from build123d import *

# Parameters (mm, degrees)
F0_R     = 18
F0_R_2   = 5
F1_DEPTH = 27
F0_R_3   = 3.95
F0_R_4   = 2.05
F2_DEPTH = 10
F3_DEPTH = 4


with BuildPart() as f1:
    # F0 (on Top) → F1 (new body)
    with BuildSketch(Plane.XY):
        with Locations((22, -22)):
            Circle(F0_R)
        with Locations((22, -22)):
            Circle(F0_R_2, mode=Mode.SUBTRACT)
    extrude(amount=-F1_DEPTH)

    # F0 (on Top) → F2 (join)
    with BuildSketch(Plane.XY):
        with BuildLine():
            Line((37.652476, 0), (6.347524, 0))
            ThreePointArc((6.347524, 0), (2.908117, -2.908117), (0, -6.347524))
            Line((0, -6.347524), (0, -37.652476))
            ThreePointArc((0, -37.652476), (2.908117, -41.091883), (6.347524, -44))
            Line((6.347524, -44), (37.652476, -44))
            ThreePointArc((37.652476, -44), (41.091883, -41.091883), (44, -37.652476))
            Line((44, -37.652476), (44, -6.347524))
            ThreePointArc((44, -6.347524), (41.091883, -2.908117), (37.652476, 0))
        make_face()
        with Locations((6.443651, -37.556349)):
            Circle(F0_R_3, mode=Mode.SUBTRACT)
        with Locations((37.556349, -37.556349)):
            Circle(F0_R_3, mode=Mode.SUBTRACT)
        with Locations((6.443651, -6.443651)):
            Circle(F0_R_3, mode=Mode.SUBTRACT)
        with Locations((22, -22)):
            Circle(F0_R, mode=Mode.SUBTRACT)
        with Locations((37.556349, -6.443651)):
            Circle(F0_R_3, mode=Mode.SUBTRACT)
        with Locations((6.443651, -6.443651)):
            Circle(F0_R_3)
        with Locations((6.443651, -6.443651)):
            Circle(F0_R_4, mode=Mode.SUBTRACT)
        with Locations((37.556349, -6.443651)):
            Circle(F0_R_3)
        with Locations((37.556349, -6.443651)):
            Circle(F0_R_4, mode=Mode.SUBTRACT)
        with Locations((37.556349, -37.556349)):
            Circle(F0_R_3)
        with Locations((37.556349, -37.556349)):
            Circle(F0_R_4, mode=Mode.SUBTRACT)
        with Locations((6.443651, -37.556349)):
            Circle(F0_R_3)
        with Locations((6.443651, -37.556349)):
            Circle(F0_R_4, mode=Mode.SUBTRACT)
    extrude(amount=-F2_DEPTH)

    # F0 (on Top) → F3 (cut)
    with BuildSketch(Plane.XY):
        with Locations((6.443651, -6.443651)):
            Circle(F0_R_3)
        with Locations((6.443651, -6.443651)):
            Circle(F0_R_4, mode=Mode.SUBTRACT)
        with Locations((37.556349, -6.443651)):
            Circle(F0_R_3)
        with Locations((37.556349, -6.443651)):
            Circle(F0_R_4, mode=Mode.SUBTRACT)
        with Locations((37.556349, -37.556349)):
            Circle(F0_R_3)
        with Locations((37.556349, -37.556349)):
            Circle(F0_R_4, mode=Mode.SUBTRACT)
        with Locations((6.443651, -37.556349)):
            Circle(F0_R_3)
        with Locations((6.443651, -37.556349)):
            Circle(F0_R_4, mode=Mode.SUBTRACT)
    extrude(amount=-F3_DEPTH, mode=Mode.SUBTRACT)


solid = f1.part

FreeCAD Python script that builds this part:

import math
import FreeCAD as App
import Part
import Sketcher
from FreeCAD import Vector
Q = App.Units.Quantity

doc = App.newDocument("Part")
body = doc.addObject("PartDesign::Body", "Body")

# Sketch on XY plane
sketch1 = body.newObject("Sketcher::SketchObject", "Sketch")
sketch1.AttachmentSupport = (doc.getObject("XY_Plane"), [""])
sketch1.MapMode = "FlatFace"
sketch1.addGeometry([
    Part.Circle(Vector(22, -22, 0), Vector(0, 0, 1), 18),
    Part.Circle(Vector(22, -22, 0), Vector(0, 0, 1), 5),
], False)
sketch1.addConstraint([
    Sketcher.Constraint("Coincident", 1, 3, 0, 3),
    Sketcher.Constraint("Diameter", 0, Q("36 mm")),
    Sketcher.Constraint("Diameter", 1, Q("10 mm")),
    Sketcher.Constraint("DistanceX", -1, 1, 0, 3, Q("22 mm")),
    Sketcher.Constraint("DistanceY", 0, 3, -1, 1, Q("22 mm")),
])
pad1 = body.newObject("PartDesign::Pad", "Pad")
pad1.Profile = sketch1
pad1.Length = 27
pad1.Reversed = True

# Sketch on XY plane
sketch2 = body.newObject("Sketcher::SketchObject", "Sketch001")
sketch2.AttachmentSupport = (doc.getObject("XY_Plane"), [""])
sketch2.MapMode = "FlatFace"
sketch2.addGeometry([
    Part.LineSegment(Vector(37.7, 0, 0), Vector(6.3, 0, 0)),  # 0
    Part.ArcOfCircle(Part.Circle(Vector(22, -22, 0), Vector(0, 0, 1), 27), math.radians(125.43), math.radians(144.57)),  # 1
    Part.LineSegment(Vector(0, -6.3, 0), Vector(0, -37.7, 0)),  # 2
    Part.ArcOfCircle(Part.Circle(Vector(22, -22, 0), Vector(0, 0, 1), 27), math.radians(-144.57), math.radians(-125.43)),  # 3
    Part.LineSegment(Vector(6.3, -44, 0), Vector(37.7, -44, 0)),  # 4
    Part.ArcOfCircle(Part.Circle(Vector(22, -22, 0), Vector(0, 0, 1), 27), math.radians(-54.57), math.radians(-35.43)),  # 5
    Part.LineSegment(Vector(44, -37.7, 0), Vector(44, -6.3, 0)),  # 6
    Part.ArcOfCircle(Part.Circle(Vector(22, -22, 0), Vector(0, 0, 1), 27), math.radians(35.43), math.radians(54.57)),  # 7
    Part.Circle(Vector(6.4, -37.6, 0), Vector(0, 0, 1), 2),  # 8
    Part.Circle(Vector(37.6, -37.6, 0), Vector(0, 0, 1), 2),  # 9
    Part.Circle(Vector(6.4, -6.4, 0), Vector(0, 0, 1), 2),  # 10
    Part.Circle(Vector(22, -22, 0), Vector(0, 0, 1), 18),  # 11
    Part.Circle(Vector(37.6, -6.4, 0), Vector(0, 0, 1), 2),  # 12
], False)
sketch2.addConstraint([
    Sketcher.Constraint("Coincident", 0, 2, 1, 1),
    Sketcher.Constraint("Coincident", 1, 2, 2, 1),
    Sketcher.Constraint("Coincident", 2, 2, 3, 1),
    Sketcher.Constraint("Coincident", 3, 2, 4, 1),
    Sketcher.Constraint("Coincident", 4, 2, 5, 1),
    Sketcher.Constraint("Coincident", 5, 2, 6, 1),
    Sketcher.Constraint("Coincident", 6, 2, 7, 1),
    Sketcher.Constraint("Coincident", 7, 2, 0, 1),
    Sketcher.Constraint("Horizontal", 0),
    Sketcher.Constraint("Vertical", 2),
    Sketcher.Constraint("Horizontal", 4),
    Sketcher.Constraint("Vertical", 6),
    Sketcher.Constraint("Equal", 1, 3),
    Sketcher.Constraint("Equal", 3, 5),
    Sketcher.Constraint("Equal", 5, 7),
    Sketcher.Constraint("Equal", 8, 9),
    Sketcher.Constraint("Equal", 9, 10),
    Sketcher.Constraint("Equal", 10, 12),
    Sketcher.Constraint("PointOnObject", 0, 2, -1),
    Sketcher.Constraint("PointOnObject", 1, 2, -2),
    Sketcher.Constraint("Horizontal", 3, 3, 5, 3),
    Sketcher.Constraint("Horizontal", 1, 3, 7, 3),
    Sketcher.Constraint("Horizontal", 8, 3, 9, 3),
    Sketcher.Constraint("Horizontal", 10, 3, 12, 3),
    Sketcher.Constraint("Horizontal", 2, 2, 5, 2),
    Sketcher.Constraint("Horizontal", 1, 2, 6, 2),
    Sketcher.Constraint("Vertical", 1, 3, 3, 3),
    Sketcher.Constraint("Vertical", 8, 3, 10, 3),
    Sketcher.Constraint("Vertical", 9, 3, 12, 3),
    Sketcher.Constraint("Vertical", 0, 2, 3, 2),
    Sketcher.Constraint("Equal", 4, 2),
    Sketcher.Constraint("Diameter", 11, Q("36 mm")),
    Sketcher.Constraint("Diameter", 8, Q("4.1 mm")),
    Sketcher.Constraint("DistanceX", -1, 1, 11, 3, Q("22 mm")),
    Sketcher.Constraint("DistanceY", 11, 3, -1, 1, Q("22 mm")),
    Sketcher.Constraint("DistanceY", 3, 2, -1, 1, Q("44 mm")),
    Sketcher.Constraint("DistanceX", -1, 1, 5, 2, Q("44 mm")),
    Sketcher.Constraint("Radius", 1, Q("27.000016 mm")),
    Sketcher.Constraint("DistanceX", 0, 2, 0, 1, Q("31.304952 mm")),
    Sketcher.Constraint("DistanceX", -1, 1, 8, 3, Q("6.443651 mm")),
    Sketcher.Constraint("DistanceY", 8, 3, -1, 1, Q("37.556349 mm")),
    Sketcher.Constraint("DistanceX", -1, 1, 9, 3, Q("37.556349 mm")),
    Sketcher.Constraint("DistanceY", 10, 3, -1, 1, Q("6.443651 mm")),
])
pad2 = body.newObject("PartDesign::Pad", "Pad001")
pad2.Profile = sketch2
pad2.Length = 10
pad2.Reversed = True

# Sketch on XY plane
sketch3 = body.newObject("Sketcher::SketchObject", "Sketch002")
sketch3.AttachmentSupport = (doc.getObject("XY_Plane"), [""])
sketch3.MapMode = "FlatFace"
sketch3.addGeometry([
    Part.Circle(Vector(6.4, -6.4, 0), Vector(0, 0, 1), 4),  # 0
    Part.Circle(Vector(6.4, -6.4, 0), Vector(0, 0, 1), 2),  # 1
    Part.Circle(Vector(37.6, -6.4, 0), Vector(0, 0, 1), 4),  # 2
    Part.Circle(Vector(37.6, -6.4, 0), Vector(0, 0, 1), 2),  # 3
    Part.Circle(Vector(37.6, -37.6, 0), Vector(0, 0, 1), 4),  # 4
    Part.Circle(Vector(37.6, -37.6, 0), Vector(0, 0, 1), 2),  # 5
    Part.Circle(Vector(6.4, -37.6, 0), Vector(0, 0, 1), 4),  # 6
    Part.Circle(Vector(6.4, -37.6, 0), Vector(0, 0, 1), 2),  # 7
], False)
sketch3.addConstraint([
    Sketcher.Constraint("Coincident", 1, 3, 0, 3),
    Sketcher.Constraint("Coincident", 3, 3, 2, 3),
    Sketcher.Constraint("Coincident", 5, 3, 4, 3),
    Sketcher.Constraint("Coincident", 7, 3, 6, 3),
    Sketcher.Constraint("Equal", 0, 2),
    Sketcher.Constraint("Equal", 1, 3),
    Sketcher.Constraint("Equal", 2, 4),
    Sketcher.Constraint("Equal", 3, 5),
    Sketcher.Constraint("Equal", 4, 6),
    Sketcher.Constraint("Equal", 5, 7),
    Sketcher.Constraint("Horizontal", 1, 3, 2, 3),
    Sketcher.Constraint("Horizontal", 5, 3, 6, 3),
    Sketcher.Constraint("Vertical", 3, 3, 4, 3),
    Sketcher.Constraint("Vertical", 1, 3, 6, 3),
    Sketcher.Constraint("Diameter", 0, Q("7.9 mm")),
    Sketcher.Constraint("Diameter", 1, Q("4.1 mm")),
    Sketcher.Constraint("DistanceX", -1, 1, 0, 3, Q("6.443651 mm")),
    Sketcher.Constraint("DistanceY", 0, 3, -1, 1, Q("6.443651 mm")),
    Sketcher.Constraint("DistanceX", -1, 1, 2, 3, Q("37.556349 mm")),
    Sketcher.Constraint("DistanceY", 4, 3, -1, 1, Q("37.556349 mm")),
])
pocket1 = body.newObject("PartDesign::Pocket", "Pocket")
pocket1.Profile = sketch3
pocket1.Length = 4

doc.recompute()
